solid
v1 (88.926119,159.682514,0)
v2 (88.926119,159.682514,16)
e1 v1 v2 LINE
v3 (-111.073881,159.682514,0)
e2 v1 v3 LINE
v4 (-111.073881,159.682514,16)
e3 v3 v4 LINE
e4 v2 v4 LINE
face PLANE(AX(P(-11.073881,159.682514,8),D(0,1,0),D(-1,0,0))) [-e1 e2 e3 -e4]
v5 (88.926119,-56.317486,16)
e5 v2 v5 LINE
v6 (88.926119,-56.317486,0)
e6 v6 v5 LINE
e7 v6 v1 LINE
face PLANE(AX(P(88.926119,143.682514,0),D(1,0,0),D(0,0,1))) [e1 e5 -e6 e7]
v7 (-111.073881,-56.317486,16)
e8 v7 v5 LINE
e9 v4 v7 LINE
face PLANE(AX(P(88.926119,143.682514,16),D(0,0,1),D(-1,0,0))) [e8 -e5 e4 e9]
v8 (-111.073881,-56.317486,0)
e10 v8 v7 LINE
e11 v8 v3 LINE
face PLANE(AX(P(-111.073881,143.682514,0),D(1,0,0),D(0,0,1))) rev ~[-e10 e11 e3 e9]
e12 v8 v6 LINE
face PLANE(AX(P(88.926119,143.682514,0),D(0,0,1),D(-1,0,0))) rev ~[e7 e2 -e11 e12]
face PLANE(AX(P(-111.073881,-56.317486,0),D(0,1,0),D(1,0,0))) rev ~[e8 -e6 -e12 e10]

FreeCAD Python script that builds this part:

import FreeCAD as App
import Part
import Sketcher

V = App.Vector

doc = App.newDocument("Part")
body = doc.addObject("PartDesign::Body", "Body")

# Sketch on XY plane
sketch1 = body.newObject("Sketcher::SketchObject", "Sketch")
sketch1.AttachmentSupport = (doc.getObject("XY_Plane"), [""])
sketch1.MapMode = "FlatFace"
sketch1.addGeometry(Part.LineSegment(V(-111, -56, 0), V(89, -56, 0)), False)
sketch1.addGeometry(Part.LineSegment(V(89, -56, 0), V(89, 144, 0)), False)
sketch1.addGeometry(Part.LineSegment(V(89, 144, 0), V(-111, 144, 0)), False)
sketch1.addGeometry(Part.LineSegment(V(-111, 144, 0), V(-111, -56, 0)), False)
sketch1.addConstraint(Sketcher.Constraint("Coincident", 0, 2, 1, 1))
sketch1.addConstraint(Sketcher.Constraint("Coincident", 1, 2, 2, 1))
sketch1.addConstraint(Sketcher.Constraint("Coincident", 2, 2, 3, 1))
sketch1.addConstraint(Sketcher.Constraint("Coincident", 3, 2, 0, 1))
sketch1.addConstraint(Sketcher.Constraint("Horizontal", 0))
sketch1.addConstraint(Sketcher.Constraint("Vertical", 1))
sketch1.addConstraint(Sketcher.Constraint("Horizontal", 2))
sketch1.addConstraint(Sketcher.Constraint("Vertical", 3))
sketch1.addConstraint(Sketcher.Constraint("Equal", 2, 1))
sketch1.addConstraint(Sketcher.Constraint("DistanceX", 0, 1, 0, 2, 200.0))
sketch1.addConstraint(Sketcher.Constraint("DistanceX", -1, 1, 0, 2, 88.926119))
sketch1.addConstraint(Sketcher.Constraint("DistanceY", 0, 2, -1, 1, 56.317486))
pad1 = body.newObject("PartDesign::Pad", "Pad")
pad1.Profile = sketch1
pad1.Length = 16

# Sketch on XZ plane
sketch2 = body.newObject("Sketcher::SketchObject", "Sketch001")
sketch2.AttachmentSupport = (doc.getObject("XZ_Plane"), [""])
sketch2.MapMode = "FlatFace"
sketch2.AttachmentOffset = App.Placement(V(0, 0, -143.682514), App.Rotation())
sketch2.addGeometry(Part.LineSegment(V(89, 16, 0), V(89, 0, 0)), False)
sketch2.addGeometry(Part.LineSegment(V(89, 0, 0), V(-111, 0, 0)), False)
sketch2.addGeometry(Part.LineSegment(V(-111, 0, 0), V(-111, 16, 0)), False)
sketch2.addGeometry(Part.LineSegment(V(-111, 16, 0), V(89, 16, 0)), False)
sketch2.addConstraint(Sketcher.Constraint("Coincident", 0, 2, 1, 1))
sketch2.addConstraint(Sketcher.Constraint("Coincident", 1, 2, 2, 1))
sketch2.addConstraint(Sketcher.Constraint("Coincident", 2, 2, 3, 1))
sketch2.addConstraint(Sketcher.Constraint("Coincident", 3, 2, 0, 1))
sketch2.addConstraint(Sketcher.Constraint("Vertical", 0))
sketch2.addConstraint(Sketcher.Constraint("Horizontal", 1))
sketch2.addConstraint(Sketcher.Constraint("Vertical", 2))
sketch2.addConstraint(Sketcher.Constraint("Horizontal", 3))
sketch2.addConstraint(Sketcher.Constraint("PointOnObject", 0, 2, -1))
sketch2.addConstraint(Sketcher.Constraint("DistanceX", 1, 2, 1, 1, 200.0))
sketch2.addConstraint(Sketcher.Constraint("DistanceY", 0, 2, 0, 1, 16.0))
sketch2.addConstraint(Sketcher.Constraint("DistanceX", -1, 1, 0, 2, 88.926119))
pad2 = body.newObject("PartDesign::Pad", "Pad001")
pad2.Profile = sketch2
pad2.Length = 16
pad2.Reversed = True

doc.recompute()
